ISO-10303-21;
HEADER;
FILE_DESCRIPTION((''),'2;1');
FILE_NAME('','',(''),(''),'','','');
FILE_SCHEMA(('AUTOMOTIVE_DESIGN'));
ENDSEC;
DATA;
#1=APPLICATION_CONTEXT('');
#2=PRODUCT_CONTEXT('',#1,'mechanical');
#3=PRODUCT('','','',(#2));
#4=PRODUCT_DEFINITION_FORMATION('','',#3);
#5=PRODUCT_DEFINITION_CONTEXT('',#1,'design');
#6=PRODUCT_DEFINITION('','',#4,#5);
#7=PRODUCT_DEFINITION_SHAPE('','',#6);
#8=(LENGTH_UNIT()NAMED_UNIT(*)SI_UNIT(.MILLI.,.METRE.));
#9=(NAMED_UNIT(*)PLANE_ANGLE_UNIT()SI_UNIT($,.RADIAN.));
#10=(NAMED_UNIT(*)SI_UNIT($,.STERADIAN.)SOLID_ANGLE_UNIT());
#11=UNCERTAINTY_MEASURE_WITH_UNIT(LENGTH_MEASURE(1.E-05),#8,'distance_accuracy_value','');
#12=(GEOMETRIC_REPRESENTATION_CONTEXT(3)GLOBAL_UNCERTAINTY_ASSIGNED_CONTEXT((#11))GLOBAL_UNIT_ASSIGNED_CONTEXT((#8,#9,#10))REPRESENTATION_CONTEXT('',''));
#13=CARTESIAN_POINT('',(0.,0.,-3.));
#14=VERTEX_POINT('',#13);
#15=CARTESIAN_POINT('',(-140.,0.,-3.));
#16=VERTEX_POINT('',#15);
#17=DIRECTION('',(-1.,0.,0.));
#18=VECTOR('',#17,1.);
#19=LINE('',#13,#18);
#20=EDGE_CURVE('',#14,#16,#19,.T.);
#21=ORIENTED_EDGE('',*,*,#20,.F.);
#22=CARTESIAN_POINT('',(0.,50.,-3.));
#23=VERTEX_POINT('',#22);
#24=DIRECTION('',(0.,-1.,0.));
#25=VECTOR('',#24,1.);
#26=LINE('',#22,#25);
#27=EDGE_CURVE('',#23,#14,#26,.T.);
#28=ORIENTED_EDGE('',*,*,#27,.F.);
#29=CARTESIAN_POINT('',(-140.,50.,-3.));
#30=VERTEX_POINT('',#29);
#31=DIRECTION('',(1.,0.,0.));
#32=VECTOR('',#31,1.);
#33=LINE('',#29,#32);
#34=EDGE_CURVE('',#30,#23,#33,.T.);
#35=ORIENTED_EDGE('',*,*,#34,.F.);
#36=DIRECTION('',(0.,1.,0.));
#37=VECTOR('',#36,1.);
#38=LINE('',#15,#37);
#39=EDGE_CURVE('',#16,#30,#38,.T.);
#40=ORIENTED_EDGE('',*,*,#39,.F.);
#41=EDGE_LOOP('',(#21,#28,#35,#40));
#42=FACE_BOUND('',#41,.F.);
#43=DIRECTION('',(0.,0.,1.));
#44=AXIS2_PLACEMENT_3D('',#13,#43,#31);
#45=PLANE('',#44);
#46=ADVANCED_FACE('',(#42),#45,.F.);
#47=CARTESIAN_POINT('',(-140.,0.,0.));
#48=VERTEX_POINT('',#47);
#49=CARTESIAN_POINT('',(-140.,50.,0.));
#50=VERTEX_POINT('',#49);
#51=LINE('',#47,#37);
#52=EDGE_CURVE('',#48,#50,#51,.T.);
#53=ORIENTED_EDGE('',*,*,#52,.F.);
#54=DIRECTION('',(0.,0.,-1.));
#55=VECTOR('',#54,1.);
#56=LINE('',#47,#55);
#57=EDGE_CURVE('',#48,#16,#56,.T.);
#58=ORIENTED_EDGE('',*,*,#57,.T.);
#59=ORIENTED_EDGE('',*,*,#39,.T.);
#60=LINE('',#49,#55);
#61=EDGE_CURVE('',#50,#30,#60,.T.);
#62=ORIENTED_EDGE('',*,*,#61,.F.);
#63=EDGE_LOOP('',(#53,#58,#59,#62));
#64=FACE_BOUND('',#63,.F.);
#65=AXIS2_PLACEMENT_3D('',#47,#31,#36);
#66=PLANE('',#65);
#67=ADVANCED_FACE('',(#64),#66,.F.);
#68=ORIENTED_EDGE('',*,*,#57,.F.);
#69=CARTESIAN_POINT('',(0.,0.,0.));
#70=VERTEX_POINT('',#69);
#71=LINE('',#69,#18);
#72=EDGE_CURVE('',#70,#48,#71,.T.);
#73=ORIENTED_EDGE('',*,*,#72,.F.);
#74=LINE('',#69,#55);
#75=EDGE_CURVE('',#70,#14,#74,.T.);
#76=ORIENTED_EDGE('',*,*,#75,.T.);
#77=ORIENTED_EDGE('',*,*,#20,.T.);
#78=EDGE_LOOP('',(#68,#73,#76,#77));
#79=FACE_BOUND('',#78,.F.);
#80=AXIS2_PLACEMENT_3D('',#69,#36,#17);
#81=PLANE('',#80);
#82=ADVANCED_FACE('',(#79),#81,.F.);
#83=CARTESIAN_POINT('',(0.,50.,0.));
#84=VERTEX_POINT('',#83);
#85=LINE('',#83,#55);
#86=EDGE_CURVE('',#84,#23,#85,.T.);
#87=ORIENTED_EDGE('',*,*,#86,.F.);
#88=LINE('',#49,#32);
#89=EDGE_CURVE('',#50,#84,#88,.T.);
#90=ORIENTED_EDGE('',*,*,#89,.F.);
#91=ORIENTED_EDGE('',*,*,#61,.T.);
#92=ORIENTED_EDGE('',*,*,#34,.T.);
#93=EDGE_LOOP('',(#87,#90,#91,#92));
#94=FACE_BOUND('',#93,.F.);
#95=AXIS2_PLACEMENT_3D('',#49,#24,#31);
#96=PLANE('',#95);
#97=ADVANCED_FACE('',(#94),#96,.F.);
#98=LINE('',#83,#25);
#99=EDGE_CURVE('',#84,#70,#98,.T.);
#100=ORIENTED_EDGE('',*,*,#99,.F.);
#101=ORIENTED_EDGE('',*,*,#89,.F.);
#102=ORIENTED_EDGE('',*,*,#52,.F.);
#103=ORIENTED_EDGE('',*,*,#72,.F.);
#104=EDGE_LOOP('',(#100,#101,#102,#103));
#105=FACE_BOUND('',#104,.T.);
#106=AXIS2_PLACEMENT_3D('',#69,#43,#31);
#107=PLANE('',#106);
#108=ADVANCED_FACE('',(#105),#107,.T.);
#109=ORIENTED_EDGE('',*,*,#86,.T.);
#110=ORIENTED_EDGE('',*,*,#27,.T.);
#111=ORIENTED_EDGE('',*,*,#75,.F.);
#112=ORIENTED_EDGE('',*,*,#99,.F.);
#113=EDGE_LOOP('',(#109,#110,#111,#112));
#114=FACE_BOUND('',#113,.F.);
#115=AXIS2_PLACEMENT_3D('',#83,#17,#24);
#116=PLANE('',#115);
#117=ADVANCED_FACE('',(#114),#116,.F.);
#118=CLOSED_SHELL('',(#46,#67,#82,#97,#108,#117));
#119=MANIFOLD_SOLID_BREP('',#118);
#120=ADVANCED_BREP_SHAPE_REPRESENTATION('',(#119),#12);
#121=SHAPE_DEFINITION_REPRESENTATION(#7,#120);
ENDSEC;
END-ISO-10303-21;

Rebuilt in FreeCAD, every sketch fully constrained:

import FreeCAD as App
import Part
import Sketcher
Q = App.Units.Quantity

doc = App.newDocument("Part")
body = doc.addObject("PartDesign::Body", "Body")

# Sketch on XY plane
sketch1 = body.newObject("Sketcher::SketchObject", "Sketch")
sketch1.AttachmentSupport = (doc.getObject("XY_Plane"), [""])
sketch1.MapMode = "FlatFace"
sketch1.addGeometry([
    Part.LineSegment(App.Vector(-140, 0, 0), App.Vector(0, 0, 0)),
    Part.LineSegment(App.Vector(0, 0, 0), App.Vector(0, 50, 0)),
    Part.LineSegment(App.Vector(0, 50, 0), App.Vector(-140, 50, 0)),
    Part.LineSegment(App.Vector(-140, 50, 0), App.Vector(-140, 0, 0)),
], False)
sketch1.addConstraint([
    Sketcher.Constraint("Coincident", 0, 2, 1, 1),
    Sketcher.Constraint("Coincident", 1, 2, 2, 1),
    Sketcher.Constraint("Coincident", 2, 2, 3, 1),
    Sketcher.Constraint("Coincident", 3, 2, 0, 1),
    Sketcher.Constraint("Horizontal", 0),
    Sketcher.Constraint("Vertical", 1),
    Sketcher.Constraint("Horizontal", 2),
    Sketcher.Constraint("Vertical", 3),
    Sketcher.Constraint("Coincident", 0, 2, -1, 1),
    Sketcher.Constraint("DistanceX", 0, 1, 0, 2, Q("140 mm")),
    Sketcher.Constraint("DistanceY", 1, 1, 1, 2, Q("50 mm")),
])
pad1 = body.newObject("PartDesign::Pad", "Pad")
pad1.Profile = sketch1
pad1.Length = 3
pad1.Reversed = True

doc.recompute()
